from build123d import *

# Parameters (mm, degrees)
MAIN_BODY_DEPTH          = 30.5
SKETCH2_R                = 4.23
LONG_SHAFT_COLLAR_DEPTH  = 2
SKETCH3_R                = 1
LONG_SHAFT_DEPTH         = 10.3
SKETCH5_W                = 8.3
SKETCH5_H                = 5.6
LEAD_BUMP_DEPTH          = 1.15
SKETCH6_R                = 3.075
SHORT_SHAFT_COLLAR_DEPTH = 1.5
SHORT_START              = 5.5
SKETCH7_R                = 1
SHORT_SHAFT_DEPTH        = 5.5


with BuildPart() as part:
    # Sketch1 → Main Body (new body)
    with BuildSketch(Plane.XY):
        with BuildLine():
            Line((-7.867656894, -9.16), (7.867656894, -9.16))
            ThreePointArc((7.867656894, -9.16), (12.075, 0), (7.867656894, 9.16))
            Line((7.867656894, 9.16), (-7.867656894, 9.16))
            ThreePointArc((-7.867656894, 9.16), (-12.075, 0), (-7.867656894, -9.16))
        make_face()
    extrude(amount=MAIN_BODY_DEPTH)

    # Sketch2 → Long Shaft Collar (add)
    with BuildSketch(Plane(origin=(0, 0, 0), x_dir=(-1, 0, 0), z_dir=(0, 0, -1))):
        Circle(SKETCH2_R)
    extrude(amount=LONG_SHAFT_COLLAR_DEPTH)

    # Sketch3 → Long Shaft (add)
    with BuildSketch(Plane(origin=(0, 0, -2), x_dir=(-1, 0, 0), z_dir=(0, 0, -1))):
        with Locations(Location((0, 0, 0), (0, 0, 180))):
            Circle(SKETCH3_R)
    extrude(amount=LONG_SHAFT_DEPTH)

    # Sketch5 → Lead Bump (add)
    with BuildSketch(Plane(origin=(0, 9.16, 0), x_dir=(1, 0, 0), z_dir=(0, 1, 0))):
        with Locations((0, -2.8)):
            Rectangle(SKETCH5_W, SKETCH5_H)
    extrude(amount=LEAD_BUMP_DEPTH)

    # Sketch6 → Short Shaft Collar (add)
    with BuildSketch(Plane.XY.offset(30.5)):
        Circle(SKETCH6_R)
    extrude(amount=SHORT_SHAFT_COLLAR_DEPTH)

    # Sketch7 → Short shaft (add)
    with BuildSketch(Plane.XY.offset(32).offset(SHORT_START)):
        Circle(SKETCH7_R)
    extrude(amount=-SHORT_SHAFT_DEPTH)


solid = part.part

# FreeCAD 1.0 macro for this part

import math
import FreeCAD as App
import Part
import Sketcher
Q = App.Units.Quantity

doc = App.newDocument("Part")
body = doc.addObject("PartDesign::Body", "Body")

sketch1 = doc.addObject("Sketcher::SketchObject", "Sketch")
body.addObject(sketch1)
sketch1.AttachmentSupport = (doc.XY_Plane, [""])
sketch1.MapMode = "FlatFace"
sketch1.addGeometry([
    Part.LineSegment(App.Vector(-7.867657, -9.16, 0), App.Vector(7.867657, -9.16, 0)),
    Part.ArcOfCircle(Part.Circle(App.Vector(0, 0, 0), App.Vector(0, 0, 1), 12.075), math.radians(-49.34024), math.radians(49.34024)),
    Part.LineSegment(App.Vector(7.867657, 9.16, 0), App.Vector(-7.867657, 9.16, 0)),
    Part.ArcOfCircle(Part.Circle(App.Vector(0, 0, 0), App.Vector(0, 0, 1), 12.075), math.radians(130.65976), math.radians(229.34024)),
], False)
sketch1.addConstraint([
    Sketcher.Constraint("Coincident", 0, 2, 1, 1),
    Sketcher.Constraint("Coincident", 1, 2, 2, 1),
    Sketcher.Constraint("Coincident", 2, 2, 3, 1),
    Sketcher.Constraint("Coincident", 3, 2, 0, 1),
    Sketcher.Constraint("Horizontal", 0),
    Sketcher.Constraint("Horizontal", 2),
    Sketcher.Constraint("Coincident", 1, 3, -1, 1),
    Sketcher.Constraint("Coincident", 3, 3, -1, 1),
    Sketcher.Constraint("Equal", 1, 3),
    Sketcher.Constraint("Vertical", 0, 2, 1, 2),
    Sketcher.Constraint("Radius", 1, Q("12.075 mm")),
    Sketcher.Constraint("DistanceY", 0, 2, -1, 1, Q("9.16 mm")),
])
pad1 = doc.addObject("PartDesign::Pad", "Pad")
body.addObject(pad1)
pad1.Profile = sketch1
pad1.Length = 30.5

sketch2 = doc.addObject("Sketcher::SketchObject", "Sketch001")
body.addObject(sketch2)
sketch2.AttachmentSupport = (doc.XY_Plane, [""])
sketch2.MapMode = "FlatFace"
sketch2.addGeometry(Part.Circle(App.Vector(0, 0, 0), App.Vector(0, 0, 1), 4.23), False)
sketch2.addConstraint([
    Sketcher.Constraint("Coincident", 0, 3, -1, 1),
    Sketcher.Constraint("Diameter", 0, Q("8.46 mm")),
])
pad2 = doc.addObject("PartDesign::Pad", "Pad001")
body.addObject(pad2)
pad2.Profile = sketch2
pad2.Length = 2
pad2.Reversed = True

sketch3 = doc.addObject("Sketcher::SketchObject", "Sketch002")
body.addObject(sketch3)
sketch3.AttachmentSupport = (doc.XY_Plane, [""])
sketch3.MapMode = "FlatFace"
sketch3.AttachmentOffset = App.Placement(App.Vector(0, 0, -2), App.Rotation())
sketch3.addGeometry(Part.Circle(App.Vector(0, 0, 0), App.Vector(0, 0, 1), 1), False)
sketch3.addConstraint([
    Sketcher.Constraint("Coincident", 0, 3, -1, 1),
    Sketcher.Constraint("Diameter", 0, Q("2 mm")),
])
pad3 = doc.addObject("PartDesign::Pad", "Pad002")
body.addObject(pad3)
pad3.Profile = sketch3
pad3.Length = 10.3
pad3.Reversed = True

sketch4 = doc.addObject("Sketcher::SketchObject", "Sketch003")
body.addObject(sketch4)
sketch4.AttachmentSupport = (doc.XZ_Plane, [""])
sketch4.MapMode = "FlatFace"
sketch4.AttachmentOffset = App.Placement(App.Vector(0, 0, -9.16), App.Rotation())
sketch4.addGeometry([
    Part.LineSegment(App.Vector(-4.15, 0, 0), App.Vector(-4.15, 5.6, 0)),
    Part.LineSegment(App.Vector(-4.15, 5.6, 0), App.Vector(4.15, 5.6, 0)),
    Part.LineSegment(App.Vector(4.15, 5.6, 0), App.Vector(4.15, 0, 0)),
    Part.LineSegment(App.Vector(4.15, 0, 0), App.Vector(-4.15, 0, 0)),
], False)
sketch4.addConstraint([
    Sketcher.Constraint("Coincident", 0, 2, 1, 1),
    Sketcher.Constraint("Coincident", 1, 2, 2, 1),
    Sketcher.Constraint("Coincident", 2, 2, 3, 1),
    Sketcher.Constraint("Coincident", 3, 2, 0, 1),
    Sketcher.Constraint("Vertical", 0),
    Sketcher.Constraint("Horizontal", 1),
    Sketcher.Constraint("Vertical", 2),
    Sketcher.Constraint("Horizontal", 3),
    Sketcher.Constraint("Symmetric", 2, 2, 3, 2, -1, 1),
    Sketcher.Constraint("DistanceX", 1, 1, 1, 2, Q("8.3 mm")),
    Sketcher.Constraint("DistanceY", 0, 1, 0, 2, Q("5.6 mm")),
])
pad4 = doc.addObject("PartDesign::Pad", "Pad003")
body.addObject(pad4)
pad4.Profile = sketch4
pad4.Length = 1.15
pad4.Reversed = True

sketch5 = doc.addObject("Sketcher::SketchObject", "Sketch004")
body.addObject(sketch5)
sketch5.AttachmentSupport = (doc.XY_Plane, [""])
sketch5.MapMode = "FlatFace"
sketch5.AttachmentOffset = App.Placement(App.Vector(0, 0, 30.5), App.Rotation())
sketch5.addGeometry(Part.Circle(App.Vector(0, 0, 0), App.Vector(0, 0, 1), 3.075), False)
sketch5.addConstraint([
    Sketcher.Constraint("Coincident", 0, 3, -1, 1),
    Sketcher.Constraint("Diameter", 0, Q("6.15 mm")),
])
pad5 = doc.addObject("PartDesign::Pad", "Pad004")
body.addObject(pad5)
pad5.Profile = sketch5
pad5.Length = 1.5

sketch6 = doc.addObject("Sketcher::SketchObject", "Sketch005")
body.addObject(sketch6)
sketch6.AttachmentSupport = (doc.XY_Plane, [""])
sketch6.MapMode = "FlatFace"
sketch6.AttachmentOffset = App.Placement(App.Vector(0, 0, 37.5), App.Rotation())
sketch6.addGeometry(Part.Circle(App.Vector(0, 0, 0), App.Vector(0, 0, 1), 1), False)
sketch6.addConstraint([
    Sketcher.Constraint("Coincident", 0, 3, -1, 1),
    Sketcher.Constraint("Diameter", 0, Q("2 mm")),
])
pad6 = doc.addObject("PartDesign::Pad", "Pad005")
body.addObject(pad6)
pad6.Profile = sketch6
pad6.Length = 5.5
pad6.Reversed = True

doc.recompute()
